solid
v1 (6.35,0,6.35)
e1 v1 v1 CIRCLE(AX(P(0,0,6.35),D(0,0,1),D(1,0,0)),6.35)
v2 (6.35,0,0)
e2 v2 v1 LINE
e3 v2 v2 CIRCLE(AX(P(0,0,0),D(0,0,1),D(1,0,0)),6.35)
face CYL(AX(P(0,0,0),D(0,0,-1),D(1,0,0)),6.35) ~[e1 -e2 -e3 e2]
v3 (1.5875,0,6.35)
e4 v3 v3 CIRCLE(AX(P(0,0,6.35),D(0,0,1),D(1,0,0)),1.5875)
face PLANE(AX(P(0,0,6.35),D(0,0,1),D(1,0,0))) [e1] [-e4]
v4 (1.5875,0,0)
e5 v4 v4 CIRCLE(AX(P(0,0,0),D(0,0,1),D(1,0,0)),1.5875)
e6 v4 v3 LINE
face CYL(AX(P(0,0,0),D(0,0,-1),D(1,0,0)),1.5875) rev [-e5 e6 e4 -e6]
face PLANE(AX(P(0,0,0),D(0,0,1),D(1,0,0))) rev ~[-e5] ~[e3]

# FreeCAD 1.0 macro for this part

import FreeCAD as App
import Part
import Sketcher

V = App.Vector
Q = App.Units.Quantity

doc = App.newDocument("Part")
body = doc.addObject("PartDesign::Body", "Body")

sketch1 = body.newObject("Sketcher::SketchObject", "Sketch")
sketch1.AttachmentSupport = (doc.getObject("XY_Plane"), [""])
sketch1.MapMode = "FlatFace"
sketch1.addGeometry(Part.Circle(V(0, 0, 0), V(0, 0, 1), 6.3), False)
sketch1.addGeometry(Part.Circle(V(0, 0, 0), V(0, 0, 1), 1.6), False)
sketch1.addConstraint(Sketcher.Constraint("Coincident", 0, 3, -1, 1))
sketch1.addConstraint(Sketcher.Constraint("Coincident", 1, 3, -1, 1))
sketch1.addConstraint(Sketcher.Constraint("Diameter", 0, Q("0.5 in")))
sketch1.addConstraint(Sketcher.Constraint("Diameter", 1, Q("0.125 in")))
pad1 = body.newObject("PartDesign::Pad", "Pad")
pad1.Profile = sketch1
pad1.Length = Q("0.25 in")

doc.recompute()
